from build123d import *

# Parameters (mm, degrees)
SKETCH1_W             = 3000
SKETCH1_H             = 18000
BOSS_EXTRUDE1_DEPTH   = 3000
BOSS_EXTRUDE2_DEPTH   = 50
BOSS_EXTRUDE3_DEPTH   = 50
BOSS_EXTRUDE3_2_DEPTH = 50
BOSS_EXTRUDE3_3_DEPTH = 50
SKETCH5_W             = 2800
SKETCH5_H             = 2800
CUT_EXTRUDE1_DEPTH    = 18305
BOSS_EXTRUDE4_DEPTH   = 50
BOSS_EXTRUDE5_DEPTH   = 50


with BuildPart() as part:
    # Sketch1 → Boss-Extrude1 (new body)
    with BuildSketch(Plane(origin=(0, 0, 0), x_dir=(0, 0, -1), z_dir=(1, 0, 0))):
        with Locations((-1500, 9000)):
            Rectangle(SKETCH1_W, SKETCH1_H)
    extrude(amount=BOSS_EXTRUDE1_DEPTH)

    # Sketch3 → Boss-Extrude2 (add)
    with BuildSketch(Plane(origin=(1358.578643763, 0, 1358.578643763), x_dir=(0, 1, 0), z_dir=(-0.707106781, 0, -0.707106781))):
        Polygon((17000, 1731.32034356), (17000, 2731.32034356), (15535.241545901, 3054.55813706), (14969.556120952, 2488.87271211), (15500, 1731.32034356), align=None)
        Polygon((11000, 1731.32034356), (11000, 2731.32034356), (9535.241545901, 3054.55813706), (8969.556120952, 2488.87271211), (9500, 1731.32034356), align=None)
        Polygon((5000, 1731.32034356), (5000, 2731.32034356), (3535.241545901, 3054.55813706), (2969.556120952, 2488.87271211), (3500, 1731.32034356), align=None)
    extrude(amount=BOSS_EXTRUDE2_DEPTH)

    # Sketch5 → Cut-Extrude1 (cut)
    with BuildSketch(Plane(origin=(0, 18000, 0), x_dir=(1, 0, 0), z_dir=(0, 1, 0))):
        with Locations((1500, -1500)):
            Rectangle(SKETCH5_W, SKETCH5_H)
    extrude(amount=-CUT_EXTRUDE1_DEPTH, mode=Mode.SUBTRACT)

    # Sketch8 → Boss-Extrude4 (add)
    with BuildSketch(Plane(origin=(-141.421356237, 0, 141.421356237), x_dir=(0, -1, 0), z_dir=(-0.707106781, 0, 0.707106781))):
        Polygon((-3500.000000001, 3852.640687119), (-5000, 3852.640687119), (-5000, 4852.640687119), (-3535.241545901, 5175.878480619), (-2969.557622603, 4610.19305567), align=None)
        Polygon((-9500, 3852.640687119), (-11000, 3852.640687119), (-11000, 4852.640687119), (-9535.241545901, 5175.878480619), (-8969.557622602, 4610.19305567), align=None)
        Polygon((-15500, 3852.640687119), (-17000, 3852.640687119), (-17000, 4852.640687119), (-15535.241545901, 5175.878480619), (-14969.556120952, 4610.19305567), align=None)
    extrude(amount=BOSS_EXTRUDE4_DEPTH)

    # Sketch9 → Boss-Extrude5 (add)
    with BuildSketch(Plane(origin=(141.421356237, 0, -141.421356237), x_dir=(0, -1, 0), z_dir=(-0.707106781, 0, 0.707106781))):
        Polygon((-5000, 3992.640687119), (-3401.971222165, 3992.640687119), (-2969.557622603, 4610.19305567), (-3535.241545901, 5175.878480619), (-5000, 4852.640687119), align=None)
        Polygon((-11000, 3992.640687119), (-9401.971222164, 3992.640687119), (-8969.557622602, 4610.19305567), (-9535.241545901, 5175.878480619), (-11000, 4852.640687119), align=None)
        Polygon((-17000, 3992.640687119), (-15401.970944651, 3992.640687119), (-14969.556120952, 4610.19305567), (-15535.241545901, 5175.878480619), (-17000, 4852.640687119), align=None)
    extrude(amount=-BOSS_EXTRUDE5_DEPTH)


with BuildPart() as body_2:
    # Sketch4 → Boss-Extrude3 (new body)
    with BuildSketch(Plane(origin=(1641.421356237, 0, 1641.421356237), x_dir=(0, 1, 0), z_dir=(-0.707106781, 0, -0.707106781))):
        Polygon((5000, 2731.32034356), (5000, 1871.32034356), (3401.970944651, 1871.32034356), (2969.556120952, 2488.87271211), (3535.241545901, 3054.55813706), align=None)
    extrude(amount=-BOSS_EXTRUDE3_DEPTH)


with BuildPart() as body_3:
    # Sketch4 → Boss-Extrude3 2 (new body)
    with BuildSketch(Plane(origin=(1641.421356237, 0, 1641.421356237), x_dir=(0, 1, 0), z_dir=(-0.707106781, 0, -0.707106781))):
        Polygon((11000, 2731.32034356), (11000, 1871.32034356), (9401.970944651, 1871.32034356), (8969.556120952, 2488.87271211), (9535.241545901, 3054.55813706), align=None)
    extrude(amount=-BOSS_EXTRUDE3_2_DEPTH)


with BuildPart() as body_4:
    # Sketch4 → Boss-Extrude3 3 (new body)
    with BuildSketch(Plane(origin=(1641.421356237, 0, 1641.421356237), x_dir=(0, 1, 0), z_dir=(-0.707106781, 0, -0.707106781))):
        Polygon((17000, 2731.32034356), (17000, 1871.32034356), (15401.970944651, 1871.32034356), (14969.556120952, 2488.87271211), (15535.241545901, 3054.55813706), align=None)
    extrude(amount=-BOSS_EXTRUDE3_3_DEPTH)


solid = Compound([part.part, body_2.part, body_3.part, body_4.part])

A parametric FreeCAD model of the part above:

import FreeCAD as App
import Part
import Sketcher
Q = App.Units.Quantity


def add_polygon(sketch, points):
    """Adds a closed chain of lines whose ends are joined by coincident constraints."""
    first, n = sketch.GeometryCount, len(points)
    for a, b in zip(points, points[1:] + points[:1]):
        sketch.addGeometry(Part.LineSegment(App.Vector(*a, 0), App.Vector(*b, 0)), False)
    for i in range(n):
        sketch.addConstraint(Sketcher.Constraint("Coincident", first + i, 2, first + (i + 1) % n, 1))

doc = App.newDocument("Part")
body = doc.addObject("PartDesign::Body", "Body")

sketch1 = body.newObject("Sketcher::SketchObject", "Sketch")
sketch1.AttachmentSupport = (doc.getObject("YZ_Plane"), [""])
sketch1.MapMode = "FlatFace"
add_polygon(sketch1, [(18000, 3000), (0, 3000), (0, 0), (18000, 0)])
sketch1.addConstraint([
    Sketcher.Constraint("Horizontal", 0),
    Sketcher.Constraint("Vertical", 1),
    Sketcher.Constraint("Horizontal", 2),
    Sketcher.Constraint("Vertical", 3),
    Sketcher.Constraint("Coincident", 1, 2, -1, 1),
    Sketcher.Constraint("DistanceX", 0, 2, 0, 1, 18000.0),
    Sketcher.Constraint("DistanceY", 1, 2, 1, 1, 3000.0),
])
pad1 = body.newObject("PartDesign::Pad", "Pad")
pad1.Profile = sketch1
pad1.Length = 3000

sketch2 = body.newObject("Sketcher::SketchObject", "Sketch001")
sketch2.Placement = App.Placement(App.Vector(1358.578644, 0, 1358.578644), App.Rotation(App.Vector(0, 1, 0), App.Vector(0.707106781, 0, -0.707106781), App.Vector(-0.707106781, 0, -0.707106781), "ZXY"))
add_polygon(sketch2, [(17000, 1731), (17000, 2731), (15535, 3055), (14970, 2489), (15500, 1731)])
add_polygon(sketch2, [(11000, 1731), (11000, 2731), (9535, 3055), (8970, 2489), (9500, 1731)])
add_polygon(sketch2, [(5000, 1731), (5000, 2731), (3535, 3055), (2970, 2489), (3500, 1731)])
sketch2.addConstraint([
    Sketcher.Constraint("Vertical", 0),
    Sketcher.Constraint("Horizontal", 4),
    Sketcher.Constraint("Vertical", 5),
    Sketcher.Constraint("Horizontal", 9),
    Sketcher.Constraint("Vertical", 10),
    Sketcher.Constraint("Horizontal", 14),
    Sketcher.Constraint("Parallel", 1, 6),
    Sketcher.Constraint("Parallel", 2, 7),
    Sketcher.Constraint("Parallel", 3, 8),
    Sketcher.Constraint("Parallel", 6, 11),
    Sketcher.Constraint("Parallel", 7, 12),
    Sketcher.Constraint("Parallel", 8, 13),
    Sketcher.Constraint("Horizontal", 0, 2, 5, 2),
    Sketcher.Constraint("Horizontal", 1, 2, 6, 2),
    Sketcher.Constraint("Horizontal", 2, 2, 7, 2),
    Sketcher.Constraint("Horizontal", 4, 2, 8, 2),
    Sketcher.Constraint("Horizontal", 5, 2, 10, 2),
    Sketcher.Constraint("Horizontal", 6, 2, 11, 2),
    Sketcher.Constraint("Horizontal", 7, 2, 12, 2),
    Sketcher.Constraint("Horizontal", 9, 2, 13, 2),
    Sketcher.Constraint("DistanceX", 4, 1, 4, 2, 1500.0),
    Sketcher.Constraint("DistanceY", 0, 1, 0, 2, 999.999999),
    Sketcher.Constraint("Angle", 2, Q("-135 deg")),
    Sketcher.Constraint("Angle", 3, Q("-55 deg")),
    Sketcher.Constraint("Distance", 1, 1500.0),
    Sketcher.Constraint("Distance", 2, 800.0),
    Sketcher.Constraint("DistanceX", -1, 1, 0, 2, 17000.0),
    Sketcher.Constraint("DistanceX", -1, 1, 5, 2, 11000.0),
    Sketcher.Constraint("DistanceX", -1, 1, 10, 2, 5000.0),
    Sketcher.Constraint("DistanceY", -1, 1, 2, 2, 2488.872711),
])
pad2 = body.newObject("PartDesign::Pad", "Pad001")
pad2.Profile = sketch2
pad2.Length = 50

sketch3 = body.newObject("Sketcher::SketchObject", "Sketch002")
sketch3.AttachmentSupport = (doc.getObject("XZ_Plane"), [""])
sketch3.MapMode = "FlatFace"
sketch3.AttachmentOffset = App.Placement(App.Vector(0, 0, -18000), App.Rotation())
add_polygon(sketch3, [(100, 100), (100, 2900), (2900, 2900), (2900, 100)])
sketch3.addConstraint([
    Sketcher.Constraint("Vertical", 0),
    Sketcher.Constraint("Horizontal", 1),
    Sketcher.Constraint("Vertical", 2),
    Sketcher.Constraint("Horizontal", 3),
    Sketcher.Constraint("Equal", 3, 0),
    Sketcher.Constraint("DistanceX", 1, 1, 1, 2, 2800.0),
    Sketcher.Constraint("DistanceX", -1, 1, 0, 2, 100.0),
    Sketcher.Constraint("DistanceY", -1, 1, 0, 2, 2900.0),
])
pocket1 = body.newObject("PartDesign::Pocket", "Pocket")
pocket1.Profile = sketch3
pocket1.Length = 18305
pocket1.Reversed = True

sketch4 = body.newObject("Sketcher::SketchObject", "Sketch003")
sketch4.Placement = App.Placement(App.Vector(-141.421356, 0, 141.421356), App.Rotation(App.Vector(0, -1, 0), App.Vector(0.707106781, 0, 0.707106781), App.Vector(-0.707106781, 0, 0.707106781), "ZXY"))
add_polygon(sketch4, [(-5000, 3852.640685), (-3500, 3852.640685), (-2969.557623, 4610.193053), (-3535.241546, 5175.878478), (-5000, 4852.640685)])
add_polygon(sketch4, [(-11000, 3852.640685), (-9500, 3852.640685), (-8969.557623, 4610.193053), (-9535.241546, 5175.878478), (-11000, 4852.640685)])
add_polygon(sketch4, [(-17000, 3852.640685), (-15500, 3852.640685), (-14969.556121, 4610.193053), (-15535.241546, 5175.878478), (-17000, 4852.640685)])
sketch4.addConstraint([
    Sketcher.Constraint("Horizontal", 0),
    Sketcher.Constraint("Vertical", 4),
    Sketcher.Constraint("Horizontal", 5),
    Sketcher.Constraint("Vertical", 9),
    Sketcher.Constraint("Horizontal", 10),
    Sketcher.Constraint("Vertical", 14),
    Sketcher.Constraint("Parallel", 1, 6),
    Sketcher.Constraint("Parallel", 2, 7),
    Sketcher.Constraint("Parallel", 3, 8),
    Sketcher.Constraint("Parallel", 6, 11),
    Sketcher.Constraint("Parallel", 7, 12),
    Sketcher.Constraint("Parallel", 8, 13),
    Sketcher.Constraint("Horizontal", 4, 2, 5, 2),
    Sketcher.Constraint("Horizontal", 1, 2, 6, 2),
    Sketcher.Constraint("Horizontal", 2, 2, 7, 2),
    Sketcher.Constraint("Horizontal", 3, 2, 8, 2),
    Sketcher.Constraint("Horizontal", 9, 2, 10, 2),
    Sketcher.Constraint("Horizontal", 6, 2, 11, 2),
    Sketcher.Constraint("Horizontal", 7, 2, 12, 2),
    Sketcher.Constraint("Horizontal", 8, 2, 13, 2),
    Sketcher.Constraint("DistanceX", 0, 1, 0, 2, 1500.0),
    Sketcher.Constraint("DistanceY", 4, 2, 4, 1, 999.999999),
    Sketcher.Constraint("Angle", 11, Q("55 deg")),
    Sketcher.Constraint("Angle", 12, Q("135 deg")),
    Sketcher.Constraint("Distance", 3, 1500.0),
    Sketcher.Constraint("Distance", 12, 800.0),
    Sketcher.Constraint("DistanceX", 0, 2, -1, 1, 3500.0),
    Sketcher.Constraint("DistanceX", 5, 2, -1, 1, 9500.0),
    Sketcher.Constraint("DistanceX", 10, 2, -1, 1, 15500.0),
    Sketcher.Constraint("DistanceY", -1, 1, 0, 2, 3852.640685),
])
pad3 = body.newObject("PartDesign::Pad", "Pad002")
pad3.Profile = sketch4
pad3.Length = 50

sketch5 = body.newObject("Sketcher::SketchObject", "Sketch004")
sketch5.Placement = App.Placement(App.Vector(141.421356, 0, -141.421356), App.Rotation(App.Vector(0, -1, 0), App.Vector(0.707106781, 0, 0.707106781), App.Vector(-0.707106781, 0, 0.707106781), "ZXY"))
add_polygon(sketch5, [(-5000, 3992.640685), (-3401.971222, 3992.640685), (-2969.557623, 4610.193053), (-3535.241546, 5175.878478), (-5000, 4852.640685)])
add_polygon(sketch5, [(-11000, 3992.640685), (-9401.971222, 3992.640685), (-8969.557623, 4610.193053), (-9535.241546, 5175.878478), (-11000, 4852.640685)])
add_polygon(sketch5, [(-17000, 3992.640685), (-15401.970945, 3992.640685), (-14969.556121, 4610.193053), (-15535.241546, 5175.878478), (-17000, 4852.640685)])
sketch5.addConstraint([
    Sketcher.Constraint("Horizontal", 0),
    Sketcher.Constraint("Vertical", 4),
    Sketcher.Constraint("Horizontal", 5),
    Sketcher.Constraint("Vertical", 9),
    Sketcher.Constraint("Horizontal", 10),
    Sketcher.Constraint("Vertical", 14),
    Sketcher.Constraint("Parallel", 1, 6),
    Sketcher.Constraint("Parallel", 2, 7),
    Sketcher.Constraint("Parallel", 3, 8),
    Sketcher.Constraint("Parallel", 6, 11),
    Sketcher.Constraint("Parallel", 7, 12),
    Sketcher.Constraint("Parallel", 8, 13),
    Sketcher.Constraint("Horizontal", 4, 2, 5, 2),
    Sketcher.Constraint("Horizontal", 1, 2, 6, 2),
    Sketcher.Constraint("Horizontal", 2, 2, 7, 2),
    Sketcher.Constraint("Horizontal", 3, 2, 8, 2),
    Sketcher.Constraint("Horizontal", 9, 2, 10, 2),
    Sketcher.Constraint("Horizontal", 6, 2, 11, 2),
    Sketcher.Constraint("Horizontal", 7, 2, 12, 2),
    Sketcher.Constraint("Horizontal", 8, 2, 13, 2),
    Sketcher.Constraint("DistanceY", 4, 2, 4, 1, 860.0),
    Sketcher.Constraint("Angle", 11, Q("55 deg")),
    Sketcher.Constraint("Angle", 12, Q("135 deg")),
    Sketcher.Constraint("Distance", 3, 1500.0),
    Sketcher.Constraint("Distance", 12, 800.0),
    Sketcher.Constraint("DistanceX", 3, 2, -1, 1, 5000.0),
    Sketcher.Constraint("DistanceX", 8, 2, -1, 1, 11000.0),
    Sketcher.Constraint("DistanceX", 13, 2, -1, 1, 17000.0),
    Sketcher.Constraint("DistanceX", 0, 2, 1, 2, 432.4136),
    Sketcher.Constraint("DistanceY", -1, 1, 0, 2, 3992.640685),
])
pad4 = body.newObject("PartDesign::Pad", "Pad003")
pad4.Profile = sketch5
pad4.Length = 50
pad4.Reversed = True
body2 = doc.addObject("PartDesign::Body", "Body001")

sketch6 = body2.newObject("Sketcher::SketchObject", "Sketch005")
sketch6.Placement = App.Placement(App.Vector(1641.421356, 0, 1641.421356), App.Rotation(App.Vector(0, 1, 0), App.Vector(0.707106781, 0, -0.707106781), App.Vector(-0.707106781, 0, -0.707106781), "ZXY"))
add_polygon(sketch6, [(5000, 1871), (5000, 2731), (3535, 3055), (2970, 2489), (3402, 1871)])
sketch6.addConstraint([
    Sketcher.Constraint("Vertical", 0),
    Sketcher.Constraint("Horizontal", 4),
    Sketcher.Constraint("DistanceY", 0, 1, 0, 2, 860.0),
    Sketcher.Constraint("Angle", 2, Q("-135 deg")),
    Sketcher.Constraint("Angle", 3, Q("-55 deg")),
    Sketcher.Constraint("Distance", 1, 1500.0),
    Sketcher.Constraint("Distance", 2, 800.0),
    Sketcher.Constraint("DistanceX", -1, 1, 0, 2, 5000.0),
    Sketcher.Constraint("DistanceX", 3, 2, 1, 2, 133.270601),
    Sketcher.Constraint("DistanceY", -1, 1, 2, 2, 2488.872711),
])
pad5 = body2.newObject("PartDesign::Pad", "Pad004")
pad5.Profile = sketch6
pad5.Length = 50
pad5.Reversed = True
body3 = doc.addObject("PartDesign::Body", "Body002")

sketch7 = body3.newObject("Sketcher::SketchObject", "Sketch006")
sketch7.Placement = App.Placement(App.Vector(1641.421356, 0, 1641.421356), App.Rotation(App.Vector(0, 1, 0), App.Vector(0.707106781, 0, -0.707106781), App.Vector(-0.707106781, 0, -0.707106781), "ZXY"))
add_polygon(sketch7, [(11000, 1871), (11000, 2731), (9535, 3055), (8970, 2489), (9402, 1871)])
sketch7.addConstraint([
    Sketcher.Constraint("Vertical", 0),
    Sketcher.Constraint("Horizontal", 4),
    Sketcher.Constraint("DistanceY", 0, 1, 0, 2, 860.0),
    Sketcher.Constraint("Angle", 2, Q("-135 deg")),
    Sketcher.Constraint("Angle", 3, Q("-55 deg")),
    Sketcher.Constraint("Distance", 1, 1500.0),
    Sketcher.Constraint("Distance", 2, 800.0),
    Sketcher.Constraint("DistanceX", -1, 1, 0, 2, 11000.0),
    Sketcher.Constraint("DistanceX", 3, 2, 1, 2, 133.270601),
    Sketcher.Constraint("DistanceY", -1, 1, 2, 2, 2488.872711),
])
pad6 = body3.newObject("PartDesign::Pad", "Pad005")
pad6.Profile = sketch7
pad6.Length = 50
pad6.Reversed = True
body4 = doc.addObject("PartDesign::Body", "Body003")

sketch8 = body4.newObject("Sketcher::SketchObject", "Sketch007")
sketch8.Placement = App.Placement(App.Vector(1641.421356, 0, 1641.421356), App.Rotation(App.Vector(0, 1, 0), App.Vector(0.707106781, 0, -0.707106781), App.Vector(-0.707106781, 0, -0.707106781), "ZXY"))
add_polygon(sketch8, [(17000, 1871), (17000, 2731), (15535, 3055), (14970, 2489), (15402, 1871)])
sketch8.addConstraint([
    Sketcher.Constraint("Vertical", 0),
    Sketcher.Constraint("Horizontal", 4),
    Sketcher.Constraint("DistanceY", 0, 1, 0, 2, 860.0),
    Sketcher.Constraint("Angle", 2, Q("-135 deg")),
    Sketcher.Constraint("Angle", 3, Q("-55 deg")),
    Sketcher.Constraint("Distance", 1, 1500.0),
    Sketcher.Constraint("Distance", 2, 800.0),
    Sketcher.Constraint("DistanceX", -1, 1, 0, 2, 17000.0),
    Sketcher.Constraint("DistanceX", 3, 2, 1, 2, 133.270601),
    Sketcher.Constraint("DistanceY", -1, 1, 2, 2, 2488.872711),
])
pad7 = body4.newObject("PartDesign::Pad", "Pad006")
pad7.Profile = sketch8
pad7.Length = 50
pad7.Reversed = True

doc.recompute()
